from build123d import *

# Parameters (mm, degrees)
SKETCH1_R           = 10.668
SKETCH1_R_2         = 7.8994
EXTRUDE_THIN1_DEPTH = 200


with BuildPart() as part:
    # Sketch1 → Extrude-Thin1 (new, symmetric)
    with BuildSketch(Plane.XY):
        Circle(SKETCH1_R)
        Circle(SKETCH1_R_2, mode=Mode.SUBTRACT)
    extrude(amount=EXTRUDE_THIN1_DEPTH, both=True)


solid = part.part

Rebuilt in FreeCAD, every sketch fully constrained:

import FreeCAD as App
import Part
import Sketcher

V = App.Vector
Q = App.Units.Quantity

doc = App.newDocument("Part")
params = doc.addObject("Spreadsheet::Sheet", "Params")
for row, (alias, value) in enumerate([
    ("sketch1_diameter", "0.84 in"),
    ("sketch1_diameter2", "0.622 in"),
    ("pad1_length", "400 mm"),
], start=1):
    params.set(f"A{row}", alias)
    params.set(f"B{row}", "=" + value)
    params.setAlias(f"B{row}", alias)

body = doc.addObject("PartDesign::Body", "Body")

# Sketch on XY plane
sketch1 = body.newObject("Sketcher::SketchObject", "Sketch")
sketch1.AttachmentSupport = (doc.getObject("XY_Plane"), [""])
sketch1.MapMode = "FlatFace"
sketch1.addGeometry([
    Part.Circle(V(0, 0, 0), V(0, 0, 1), 11),
    Part.Circle(V(0, 0, 0), V(0, 0, 1), 8),
], False)
sketch1.addConstraint([
    Sketcher.Constraint("Coincident", 0, 3, -1, 1),
    Sketcher.Constraint("Coincident", 1, 3, -1, 1),
    Sketcher.Constraint("Diameter", 0, Q("0.84 in")),
    Sketcher.Constraint("Diameter", 1, Q("0.622 in")),
])
sketch1.setExpression("Constraints[2]", "Params.sketch1_diameter")
sketch1.setExpression("Constraints[3]", "Params.sketch1_diameter2")
pad1 = body.newObject("PartDesign::Pad", "Pad")
pad1.Profile = sketch1
pad1.setExpression("Length", "Params.pad1_length")
pad1.Midplane = True

doc.recompute()
